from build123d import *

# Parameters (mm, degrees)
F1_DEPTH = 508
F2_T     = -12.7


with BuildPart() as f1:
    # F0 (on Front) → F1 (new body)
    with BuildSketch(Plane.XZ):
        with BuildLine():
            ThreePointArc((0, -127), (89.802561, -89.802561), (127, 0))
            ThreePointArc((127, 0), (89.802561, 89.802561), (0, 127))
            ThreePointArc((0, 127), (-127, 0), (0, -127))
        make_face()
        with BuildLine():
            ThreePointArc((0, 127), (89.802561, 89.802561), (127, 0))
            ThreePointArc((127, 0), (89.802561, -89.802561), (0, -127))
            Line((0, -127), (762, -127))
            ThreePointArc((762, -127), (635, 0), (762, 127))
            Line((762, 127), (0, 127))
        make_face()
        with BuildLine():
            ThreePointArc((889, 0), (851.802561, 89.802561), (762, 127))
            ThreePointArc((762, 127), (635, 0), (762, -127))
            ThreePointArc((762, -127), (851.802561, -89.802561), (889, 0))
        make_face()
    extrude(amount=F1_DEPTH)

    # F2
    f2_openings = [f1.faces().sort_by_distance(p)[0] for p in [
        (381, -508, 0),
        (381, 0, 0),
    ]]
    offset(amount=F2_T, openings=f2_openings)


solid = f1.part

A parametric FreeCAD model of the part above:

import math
import FreeCAD as App
import Part
import Sketcher
Q = App.Units.Quantity


def faces_at(feature, points):
    """Names of the faces that lie closest to the given points."""
    faces = feature.Shape.Faces
    near = lambda p: min(range(len(faces)), key=lambda i: faces[i].distToShape(Part.Vertex(*p))[0])
    return sorted({f"Face{near(p) + 1}" for p in points})

doc = App.newDocument("Part")
params = doc.addObject("Spreadsheet::Sheet", "Params")
for row, (alias, value) in enumerate([
    ("sketch1_radius", "5 in"),
    ("sketch1_width", "30 in"),
    ("pad1_length", "20 in"),
    ("thickness_wall", "0.5 in"),
], start=1):
    params.set(f"A{row}", alias)
    params.set(f"B{row}", "=" + value)
    params.setAlias(f"B{row}", alias)

body = doc.addObject("PartDesign::Body", "Body")

# Sketch on XZ plane
sketch1 = body.newObject("Sketcher::SketchObject", "Sketch")
sketch1.AttachmentSupport = (doc.getObject("XZ_Plane"), [""])
sketch1.MapMode = "FlatFace"
sketch1.addGeometry(Part.ArcOfCircle(Part.Circle(App.Vector(0, 0, 0), App.Vector(0, 0, 1), 127), math.radians(90), math.radians(270)), False)
sketch1.addGeometry(Part.LineSegment(App.Vector(0, -127, 0), App.Vector(762, -127, 0)), False)
sketch1.addGeometry(Part.ArcOfCircle(Part.Circle(App.Vector(761.999999, 0.000001, 0), App.Vector(0, 0, 1), 127.000001), math.radians(-90), math.radians(0)), False)
sketch1.addGeometry(Part.ArcOfCircle(Part.Circle(App.Vector(761.999999, -0.000001, 0), App.Vector(0, 0, 1), 127.000001), math.radians(0), math.radians(90)), False)
sketch1.addGeometry(Part.LineSegment(App.Vector(762, 127, 0), App.Vector(0, 127, 0)), False)
sketch1.addConstraint(Sketcher.Constraint("Tangent", 0, 2, 1, 1))
sketch1.addConstraint(Sketcher.Constraint("Tangent", 1, 2, 2, 1))
sketch1.addConstraint(Sketcher.Constraint("Tangent", 2, 2, 3, 1))
sketch1.addConstraint(Sketcher.Constraint("Tangent", 3, 2, 4, 1))
sketch1.addConstraint(Sketcher.Constraint("Tangent", 4, 2, 0, 1))
sketch1.addConstraint(Sketcher.Constraint("Horizontal", 1))
sketch1.addConstraint(Sketcher.Constraint("Horizontal", 4))
sketch1.addConstraint(Sketcher.Constraint("Coincident", 0, 3, -1, 1))
sketch1.addConstraint(Sketcher.Constraint("Equal", 0, 2))
sketch1.addConstraint(Sketcher.Constraint("PointOnObject", 2, 2, -1))
sketch1.addConstraint(Sketcher.Constraint("Radius", 0, Q("5 in")))
sketch1.addConstraint(Sketcher.Constraint("DistanceX", 1, 1, 1, 2, Q("30 in")))
sketch1.setExpression("Constraints[10]", "Params.sketch1_radius")
sketch1.setExpression("Constraints[11]", "Params.sketch1_width")
pad1 = body.newObject("PartDesign::Pad", "Pad")
pad1.Profile = sketch1
pad1.setExpression("Length", "Params.pad1_length")
doc.recompute()

thickness = body.newObject("PartDesign::Thickness", "Thickness")
thickness.Base = (pad1, faces_at(pad1, [(381, -508, 0), (381, 0, 0)]))
thickness.setExpression("Value", "Params.thickness_wall")
thickness.Reversed = True
thickness.Join = "Arc"

doc.recompute()
